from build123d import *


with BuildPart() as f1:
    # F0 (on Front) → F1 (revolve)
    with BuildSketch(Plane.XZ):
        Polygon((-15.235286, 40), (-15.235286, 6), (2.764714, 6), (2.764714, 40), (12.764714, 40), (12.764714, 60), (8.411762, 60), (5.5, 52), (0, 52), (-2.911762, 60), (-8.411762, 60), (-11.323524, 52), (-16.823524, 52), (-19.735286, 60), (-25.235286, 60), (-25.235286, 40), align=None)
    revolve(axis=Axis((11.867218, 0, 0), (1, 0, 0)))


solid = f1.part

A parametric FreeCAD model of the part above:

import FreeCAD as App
import Part
import Sketcher
from FreeCAD import Vector
Q = App.Units.Quantity


def add_polygon(sketch, points):
    """Adds a closed chain of lines whose ends are joined by coincident constraints."""
    first, n = sketch.GeometryCount, len(points)
    for a, b in zip(points, points[1:] + points[:1]):
        sketch.addGeometry(Part.LineSegment(App.Vector(*a, 0), App.Vector(*b, 0)), False)
    for i in range(n):
        sketch.addConstraint(Sketcher.Constraint("Coincident", first + i, 2, first + (i + 1) % n, 1))

doc = App.newDocument("Part")
body = doc.addObject("PartDesign::Body", "Body")

# Sketch on XZ plane
sketch1 = body.newObject("Sketcher::SketchObject", "Sketch")
sketch1.AttachmentSupport = (doc.getObject("XZ_Plane"), [""])
sketch1.MapMode = "FlatFace"
add_polygon(sketch1, [(-15.2, 40), (-15.2, 6), (2.8, 6), (2.8, 40), (12.8, 40), (12.8, 60), (8.4, 60), (5.5, 52), (0, 52), (-2.9, 60), (-8.4, 60), (-11.3, 52), (-16.8, 52), (-19.7, 60), (-25.2, 60), (-25.2, 40)])  # lines 0-15
sketch1.addConstraint([
    Sketcher.Constraint("Vertical", 0),
    Sketcher.Constraint("Horizontal", 1),
    Sketcher.Constraint("Vertical", 2),
    Sketcher.Constraint("Horizontal", 3),
    Sketcher.Constraint("Vertical", 4),
    Sketcher.Constraint("Horizontal", 5),
    Sketcher.Constraint("Horizontal", 7),
    Sketcher.Constraint("Horizontal", 9),
    Sketcher.Constraint("Horizontal", 11),
    Sketcher.Constraint("Horizontal", 13),
    Sketcher.Constraint("Vertical", 14),
    Sketcher.Constraint("Horizontal", 15),
    Sketcher.Constraint("Symmetric", 5, 2, 9, 2, -2),
    Sketcher.Constraint("PointOnObject", 7, 2, -2),
    Sketcher.Constraint("Parallel", 6, 10),
    Sketcher.Constraint("Parallel", 8, 12),
    Sketcher.Constraint("Horizontal", 7, 2, 10, 2),
    Sketcher.Constraint("Horizontal", 9, 2, 12, 2),
    Sketcher.Constraint("Horizontal", 3, 2, 14, 2),
    Sketcher.Constraint("Equal", 7, 9),
    Sketcher.Constraint("Equal", 9, 11),
    Sketcher.Constraint("Equal", 11, 13),
    Sketcher.Constraint("Equal", 3, 15),
    Sketcher.Constraint("DistanceX", 1, 1, 1, 2, Q("18 mm")),
    Sketcher.Constraint("DistanceX", 3, 1, 3, 2, Q("10 mm")),
    Sketcher.Constraint("DistanceY", 0, 2, 0, 1, Q("34 mm")),
    Sketcher.Constraint("DistanceY", 4, 1, 4, 2, Q("20 mm")),
    Sketcher.Constraint("Angle", 6, Q("-110.000001 deg")),
    Sketcher.Constraint("DistanceX", 7, 2, 7, 1, Q("5.5 mm")),
    Sketcher.Constraint("DistanceY", -1, 1, 0, 2, Q("6 mm")),
    Sketcher.Constraint("DistanceY", -1, 1, 6, 2, Q("52 mm")),
])
revolution = body.newObject("PartDesign::Revolution", "Revolution")
revolution.Profile = sketch1
revolution.ReferenceAxis = (sketch1, ["H_Axis"])
revolution.Angle = 360

doc.recompute()
